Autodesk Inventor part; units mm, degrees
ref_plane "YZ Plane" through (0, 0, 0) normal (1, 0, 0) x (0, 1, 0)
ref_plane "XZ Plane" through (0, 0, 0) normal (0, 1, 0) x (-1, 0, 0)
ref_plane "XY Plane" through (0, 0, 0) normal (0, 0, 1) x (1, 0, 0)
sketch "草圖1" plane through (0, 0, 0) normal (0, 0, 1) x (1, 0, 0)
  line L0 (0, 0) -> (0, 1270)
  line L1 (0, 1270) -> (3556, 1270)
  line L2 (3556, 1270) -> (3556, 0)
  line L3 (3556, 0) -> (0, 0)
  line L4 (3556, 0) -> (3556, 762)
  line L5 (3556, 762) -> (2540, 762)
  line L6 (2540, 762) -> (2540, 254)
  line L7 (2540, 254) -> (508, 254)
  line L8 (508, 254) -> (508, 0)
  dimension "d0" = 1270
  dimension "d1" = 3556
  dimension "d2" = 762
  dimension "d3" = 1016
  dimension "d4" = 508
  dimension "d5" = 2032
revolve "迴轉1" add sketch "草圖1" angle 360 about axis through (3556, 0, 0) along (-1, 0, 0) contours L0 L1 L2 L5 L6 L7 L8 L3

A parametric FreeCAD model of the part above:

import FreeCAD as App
import Part
import Sketcher
Q = App.Units.Quantity


def add_polygon(sketch, points):
    """Adds a closed chain of lines whose ends are joined by coincident constraints."""
    first, n = sketch.GeometryCount, len(points)
    for a, b in zip(points, points[1:] + points[:1]):
        sketch.addGeometry(Part.LineSegment(App.Vector(*a, 0), App.Vector(*b, 0)), False)
    for i in range(n):
        sketch.addConstraint(Sketcher.Constraint("Coincident", first + i, 2, first + (i + 1) % n, 1))

doc = App.newDocument("Part")
params = doc.addObject("Spreadsheet::Sheet", "Params")
for row, (alias, value) in enumerate([
    ("sketch1_width", "20 in"),
    ("sketch1_width2", "80 in"),
    ("sketch1_width3", "40 in"),
    ("sketch1_height", "50 in"),
    ("revolution_angle", "360 deg"),
], start=1):
    params.set(f"A{row}", alias)
    params.set(f"B{row}", "=" + value)
    params.setAlias(f"B{row}", alias)

body = doc.addObject("PartDesign::Body", "Body")

# Sketch on XY plane
sketch1 = body.newObject("Sketcher::SketchObject", "Sketch")
sketch1.AttachmentSupport = (doc.getObject("XY_Plane"), [""])
sketch1.MapMode = "FlatFace"
add_polygon(sketch1, [(0, 1270), (0, 0), (508, 0), (508, 254), (2540, 254), (2540, 762), (3556, 762), (3556, 1270)])  # lines 0-7
sketch1.addConstraint(Sketcher.Constraint("Vertical", 0))
sketch1.addConstraint(Sketcher.Constraint("Horizontal", 1))
sketch1.addConstraint(Sketcher.Constraint("Vertical", 2))
sketch1.addConstraint(Sketcher.Constraint("Horizontal", 3))
sketch1.addConstraint(Sketcher.Constraint("Vertical", 4))
sketch1.addConstraint(Sketcher.Constraint("Horizontal", 5))
sketch1.addConstraint(Sketcher.Constraint("Vertical", 6))
sketch1.addConstraint(Sketcher.Constraint("Horizontal", 7))
sketch1.addConstraint(Sketcher.Constraint("Coincident", 0, 2, -1, 1))
sketch1.addConstraint(Sketcher.Constraint("Equal", 1, 4))
sketch1.addConstraint(Sketcher.Constraint("Equal", 4, 6))
sketch1.addConstraint(Sketcher.Constraint("DistanceX", 1, 1, 1, 2, Q("20 in")))
sketch1.addConstraint(Sketcher.Constraint("DistanceX", 3, 1, 3, 2, Q("80 in")))
sketch1.addConstraint(Sketcher.Constraint("DistanceX", 5, 1, 5, 2, Q("40 in")))
sketch1.addConstraint(Sketcher.Constraint("DistanceY", 0, 2, 0, 1, Q("50 in")))
sketch1.setExpression("Constraints[19]", "Params.sketch1_width")
sketch1.setExpression("Constraints[20]", "Params.sketch1_width2")
sketch1.setExpression("Constraints[21]", "Params.sketch1_width3")
sketch1.setExpression("Constraints[22]", "Params.sketch1_height")
revolution = body.newObject("PartDesign::Revolution", "Revolution")
revolution.Profile = sketch1
revolution.ReferenceAxis = (sketch1, ["H_Axis"])
revolution.setExpression("Angle", "Params.revolution_angle")

doc.recompute()
